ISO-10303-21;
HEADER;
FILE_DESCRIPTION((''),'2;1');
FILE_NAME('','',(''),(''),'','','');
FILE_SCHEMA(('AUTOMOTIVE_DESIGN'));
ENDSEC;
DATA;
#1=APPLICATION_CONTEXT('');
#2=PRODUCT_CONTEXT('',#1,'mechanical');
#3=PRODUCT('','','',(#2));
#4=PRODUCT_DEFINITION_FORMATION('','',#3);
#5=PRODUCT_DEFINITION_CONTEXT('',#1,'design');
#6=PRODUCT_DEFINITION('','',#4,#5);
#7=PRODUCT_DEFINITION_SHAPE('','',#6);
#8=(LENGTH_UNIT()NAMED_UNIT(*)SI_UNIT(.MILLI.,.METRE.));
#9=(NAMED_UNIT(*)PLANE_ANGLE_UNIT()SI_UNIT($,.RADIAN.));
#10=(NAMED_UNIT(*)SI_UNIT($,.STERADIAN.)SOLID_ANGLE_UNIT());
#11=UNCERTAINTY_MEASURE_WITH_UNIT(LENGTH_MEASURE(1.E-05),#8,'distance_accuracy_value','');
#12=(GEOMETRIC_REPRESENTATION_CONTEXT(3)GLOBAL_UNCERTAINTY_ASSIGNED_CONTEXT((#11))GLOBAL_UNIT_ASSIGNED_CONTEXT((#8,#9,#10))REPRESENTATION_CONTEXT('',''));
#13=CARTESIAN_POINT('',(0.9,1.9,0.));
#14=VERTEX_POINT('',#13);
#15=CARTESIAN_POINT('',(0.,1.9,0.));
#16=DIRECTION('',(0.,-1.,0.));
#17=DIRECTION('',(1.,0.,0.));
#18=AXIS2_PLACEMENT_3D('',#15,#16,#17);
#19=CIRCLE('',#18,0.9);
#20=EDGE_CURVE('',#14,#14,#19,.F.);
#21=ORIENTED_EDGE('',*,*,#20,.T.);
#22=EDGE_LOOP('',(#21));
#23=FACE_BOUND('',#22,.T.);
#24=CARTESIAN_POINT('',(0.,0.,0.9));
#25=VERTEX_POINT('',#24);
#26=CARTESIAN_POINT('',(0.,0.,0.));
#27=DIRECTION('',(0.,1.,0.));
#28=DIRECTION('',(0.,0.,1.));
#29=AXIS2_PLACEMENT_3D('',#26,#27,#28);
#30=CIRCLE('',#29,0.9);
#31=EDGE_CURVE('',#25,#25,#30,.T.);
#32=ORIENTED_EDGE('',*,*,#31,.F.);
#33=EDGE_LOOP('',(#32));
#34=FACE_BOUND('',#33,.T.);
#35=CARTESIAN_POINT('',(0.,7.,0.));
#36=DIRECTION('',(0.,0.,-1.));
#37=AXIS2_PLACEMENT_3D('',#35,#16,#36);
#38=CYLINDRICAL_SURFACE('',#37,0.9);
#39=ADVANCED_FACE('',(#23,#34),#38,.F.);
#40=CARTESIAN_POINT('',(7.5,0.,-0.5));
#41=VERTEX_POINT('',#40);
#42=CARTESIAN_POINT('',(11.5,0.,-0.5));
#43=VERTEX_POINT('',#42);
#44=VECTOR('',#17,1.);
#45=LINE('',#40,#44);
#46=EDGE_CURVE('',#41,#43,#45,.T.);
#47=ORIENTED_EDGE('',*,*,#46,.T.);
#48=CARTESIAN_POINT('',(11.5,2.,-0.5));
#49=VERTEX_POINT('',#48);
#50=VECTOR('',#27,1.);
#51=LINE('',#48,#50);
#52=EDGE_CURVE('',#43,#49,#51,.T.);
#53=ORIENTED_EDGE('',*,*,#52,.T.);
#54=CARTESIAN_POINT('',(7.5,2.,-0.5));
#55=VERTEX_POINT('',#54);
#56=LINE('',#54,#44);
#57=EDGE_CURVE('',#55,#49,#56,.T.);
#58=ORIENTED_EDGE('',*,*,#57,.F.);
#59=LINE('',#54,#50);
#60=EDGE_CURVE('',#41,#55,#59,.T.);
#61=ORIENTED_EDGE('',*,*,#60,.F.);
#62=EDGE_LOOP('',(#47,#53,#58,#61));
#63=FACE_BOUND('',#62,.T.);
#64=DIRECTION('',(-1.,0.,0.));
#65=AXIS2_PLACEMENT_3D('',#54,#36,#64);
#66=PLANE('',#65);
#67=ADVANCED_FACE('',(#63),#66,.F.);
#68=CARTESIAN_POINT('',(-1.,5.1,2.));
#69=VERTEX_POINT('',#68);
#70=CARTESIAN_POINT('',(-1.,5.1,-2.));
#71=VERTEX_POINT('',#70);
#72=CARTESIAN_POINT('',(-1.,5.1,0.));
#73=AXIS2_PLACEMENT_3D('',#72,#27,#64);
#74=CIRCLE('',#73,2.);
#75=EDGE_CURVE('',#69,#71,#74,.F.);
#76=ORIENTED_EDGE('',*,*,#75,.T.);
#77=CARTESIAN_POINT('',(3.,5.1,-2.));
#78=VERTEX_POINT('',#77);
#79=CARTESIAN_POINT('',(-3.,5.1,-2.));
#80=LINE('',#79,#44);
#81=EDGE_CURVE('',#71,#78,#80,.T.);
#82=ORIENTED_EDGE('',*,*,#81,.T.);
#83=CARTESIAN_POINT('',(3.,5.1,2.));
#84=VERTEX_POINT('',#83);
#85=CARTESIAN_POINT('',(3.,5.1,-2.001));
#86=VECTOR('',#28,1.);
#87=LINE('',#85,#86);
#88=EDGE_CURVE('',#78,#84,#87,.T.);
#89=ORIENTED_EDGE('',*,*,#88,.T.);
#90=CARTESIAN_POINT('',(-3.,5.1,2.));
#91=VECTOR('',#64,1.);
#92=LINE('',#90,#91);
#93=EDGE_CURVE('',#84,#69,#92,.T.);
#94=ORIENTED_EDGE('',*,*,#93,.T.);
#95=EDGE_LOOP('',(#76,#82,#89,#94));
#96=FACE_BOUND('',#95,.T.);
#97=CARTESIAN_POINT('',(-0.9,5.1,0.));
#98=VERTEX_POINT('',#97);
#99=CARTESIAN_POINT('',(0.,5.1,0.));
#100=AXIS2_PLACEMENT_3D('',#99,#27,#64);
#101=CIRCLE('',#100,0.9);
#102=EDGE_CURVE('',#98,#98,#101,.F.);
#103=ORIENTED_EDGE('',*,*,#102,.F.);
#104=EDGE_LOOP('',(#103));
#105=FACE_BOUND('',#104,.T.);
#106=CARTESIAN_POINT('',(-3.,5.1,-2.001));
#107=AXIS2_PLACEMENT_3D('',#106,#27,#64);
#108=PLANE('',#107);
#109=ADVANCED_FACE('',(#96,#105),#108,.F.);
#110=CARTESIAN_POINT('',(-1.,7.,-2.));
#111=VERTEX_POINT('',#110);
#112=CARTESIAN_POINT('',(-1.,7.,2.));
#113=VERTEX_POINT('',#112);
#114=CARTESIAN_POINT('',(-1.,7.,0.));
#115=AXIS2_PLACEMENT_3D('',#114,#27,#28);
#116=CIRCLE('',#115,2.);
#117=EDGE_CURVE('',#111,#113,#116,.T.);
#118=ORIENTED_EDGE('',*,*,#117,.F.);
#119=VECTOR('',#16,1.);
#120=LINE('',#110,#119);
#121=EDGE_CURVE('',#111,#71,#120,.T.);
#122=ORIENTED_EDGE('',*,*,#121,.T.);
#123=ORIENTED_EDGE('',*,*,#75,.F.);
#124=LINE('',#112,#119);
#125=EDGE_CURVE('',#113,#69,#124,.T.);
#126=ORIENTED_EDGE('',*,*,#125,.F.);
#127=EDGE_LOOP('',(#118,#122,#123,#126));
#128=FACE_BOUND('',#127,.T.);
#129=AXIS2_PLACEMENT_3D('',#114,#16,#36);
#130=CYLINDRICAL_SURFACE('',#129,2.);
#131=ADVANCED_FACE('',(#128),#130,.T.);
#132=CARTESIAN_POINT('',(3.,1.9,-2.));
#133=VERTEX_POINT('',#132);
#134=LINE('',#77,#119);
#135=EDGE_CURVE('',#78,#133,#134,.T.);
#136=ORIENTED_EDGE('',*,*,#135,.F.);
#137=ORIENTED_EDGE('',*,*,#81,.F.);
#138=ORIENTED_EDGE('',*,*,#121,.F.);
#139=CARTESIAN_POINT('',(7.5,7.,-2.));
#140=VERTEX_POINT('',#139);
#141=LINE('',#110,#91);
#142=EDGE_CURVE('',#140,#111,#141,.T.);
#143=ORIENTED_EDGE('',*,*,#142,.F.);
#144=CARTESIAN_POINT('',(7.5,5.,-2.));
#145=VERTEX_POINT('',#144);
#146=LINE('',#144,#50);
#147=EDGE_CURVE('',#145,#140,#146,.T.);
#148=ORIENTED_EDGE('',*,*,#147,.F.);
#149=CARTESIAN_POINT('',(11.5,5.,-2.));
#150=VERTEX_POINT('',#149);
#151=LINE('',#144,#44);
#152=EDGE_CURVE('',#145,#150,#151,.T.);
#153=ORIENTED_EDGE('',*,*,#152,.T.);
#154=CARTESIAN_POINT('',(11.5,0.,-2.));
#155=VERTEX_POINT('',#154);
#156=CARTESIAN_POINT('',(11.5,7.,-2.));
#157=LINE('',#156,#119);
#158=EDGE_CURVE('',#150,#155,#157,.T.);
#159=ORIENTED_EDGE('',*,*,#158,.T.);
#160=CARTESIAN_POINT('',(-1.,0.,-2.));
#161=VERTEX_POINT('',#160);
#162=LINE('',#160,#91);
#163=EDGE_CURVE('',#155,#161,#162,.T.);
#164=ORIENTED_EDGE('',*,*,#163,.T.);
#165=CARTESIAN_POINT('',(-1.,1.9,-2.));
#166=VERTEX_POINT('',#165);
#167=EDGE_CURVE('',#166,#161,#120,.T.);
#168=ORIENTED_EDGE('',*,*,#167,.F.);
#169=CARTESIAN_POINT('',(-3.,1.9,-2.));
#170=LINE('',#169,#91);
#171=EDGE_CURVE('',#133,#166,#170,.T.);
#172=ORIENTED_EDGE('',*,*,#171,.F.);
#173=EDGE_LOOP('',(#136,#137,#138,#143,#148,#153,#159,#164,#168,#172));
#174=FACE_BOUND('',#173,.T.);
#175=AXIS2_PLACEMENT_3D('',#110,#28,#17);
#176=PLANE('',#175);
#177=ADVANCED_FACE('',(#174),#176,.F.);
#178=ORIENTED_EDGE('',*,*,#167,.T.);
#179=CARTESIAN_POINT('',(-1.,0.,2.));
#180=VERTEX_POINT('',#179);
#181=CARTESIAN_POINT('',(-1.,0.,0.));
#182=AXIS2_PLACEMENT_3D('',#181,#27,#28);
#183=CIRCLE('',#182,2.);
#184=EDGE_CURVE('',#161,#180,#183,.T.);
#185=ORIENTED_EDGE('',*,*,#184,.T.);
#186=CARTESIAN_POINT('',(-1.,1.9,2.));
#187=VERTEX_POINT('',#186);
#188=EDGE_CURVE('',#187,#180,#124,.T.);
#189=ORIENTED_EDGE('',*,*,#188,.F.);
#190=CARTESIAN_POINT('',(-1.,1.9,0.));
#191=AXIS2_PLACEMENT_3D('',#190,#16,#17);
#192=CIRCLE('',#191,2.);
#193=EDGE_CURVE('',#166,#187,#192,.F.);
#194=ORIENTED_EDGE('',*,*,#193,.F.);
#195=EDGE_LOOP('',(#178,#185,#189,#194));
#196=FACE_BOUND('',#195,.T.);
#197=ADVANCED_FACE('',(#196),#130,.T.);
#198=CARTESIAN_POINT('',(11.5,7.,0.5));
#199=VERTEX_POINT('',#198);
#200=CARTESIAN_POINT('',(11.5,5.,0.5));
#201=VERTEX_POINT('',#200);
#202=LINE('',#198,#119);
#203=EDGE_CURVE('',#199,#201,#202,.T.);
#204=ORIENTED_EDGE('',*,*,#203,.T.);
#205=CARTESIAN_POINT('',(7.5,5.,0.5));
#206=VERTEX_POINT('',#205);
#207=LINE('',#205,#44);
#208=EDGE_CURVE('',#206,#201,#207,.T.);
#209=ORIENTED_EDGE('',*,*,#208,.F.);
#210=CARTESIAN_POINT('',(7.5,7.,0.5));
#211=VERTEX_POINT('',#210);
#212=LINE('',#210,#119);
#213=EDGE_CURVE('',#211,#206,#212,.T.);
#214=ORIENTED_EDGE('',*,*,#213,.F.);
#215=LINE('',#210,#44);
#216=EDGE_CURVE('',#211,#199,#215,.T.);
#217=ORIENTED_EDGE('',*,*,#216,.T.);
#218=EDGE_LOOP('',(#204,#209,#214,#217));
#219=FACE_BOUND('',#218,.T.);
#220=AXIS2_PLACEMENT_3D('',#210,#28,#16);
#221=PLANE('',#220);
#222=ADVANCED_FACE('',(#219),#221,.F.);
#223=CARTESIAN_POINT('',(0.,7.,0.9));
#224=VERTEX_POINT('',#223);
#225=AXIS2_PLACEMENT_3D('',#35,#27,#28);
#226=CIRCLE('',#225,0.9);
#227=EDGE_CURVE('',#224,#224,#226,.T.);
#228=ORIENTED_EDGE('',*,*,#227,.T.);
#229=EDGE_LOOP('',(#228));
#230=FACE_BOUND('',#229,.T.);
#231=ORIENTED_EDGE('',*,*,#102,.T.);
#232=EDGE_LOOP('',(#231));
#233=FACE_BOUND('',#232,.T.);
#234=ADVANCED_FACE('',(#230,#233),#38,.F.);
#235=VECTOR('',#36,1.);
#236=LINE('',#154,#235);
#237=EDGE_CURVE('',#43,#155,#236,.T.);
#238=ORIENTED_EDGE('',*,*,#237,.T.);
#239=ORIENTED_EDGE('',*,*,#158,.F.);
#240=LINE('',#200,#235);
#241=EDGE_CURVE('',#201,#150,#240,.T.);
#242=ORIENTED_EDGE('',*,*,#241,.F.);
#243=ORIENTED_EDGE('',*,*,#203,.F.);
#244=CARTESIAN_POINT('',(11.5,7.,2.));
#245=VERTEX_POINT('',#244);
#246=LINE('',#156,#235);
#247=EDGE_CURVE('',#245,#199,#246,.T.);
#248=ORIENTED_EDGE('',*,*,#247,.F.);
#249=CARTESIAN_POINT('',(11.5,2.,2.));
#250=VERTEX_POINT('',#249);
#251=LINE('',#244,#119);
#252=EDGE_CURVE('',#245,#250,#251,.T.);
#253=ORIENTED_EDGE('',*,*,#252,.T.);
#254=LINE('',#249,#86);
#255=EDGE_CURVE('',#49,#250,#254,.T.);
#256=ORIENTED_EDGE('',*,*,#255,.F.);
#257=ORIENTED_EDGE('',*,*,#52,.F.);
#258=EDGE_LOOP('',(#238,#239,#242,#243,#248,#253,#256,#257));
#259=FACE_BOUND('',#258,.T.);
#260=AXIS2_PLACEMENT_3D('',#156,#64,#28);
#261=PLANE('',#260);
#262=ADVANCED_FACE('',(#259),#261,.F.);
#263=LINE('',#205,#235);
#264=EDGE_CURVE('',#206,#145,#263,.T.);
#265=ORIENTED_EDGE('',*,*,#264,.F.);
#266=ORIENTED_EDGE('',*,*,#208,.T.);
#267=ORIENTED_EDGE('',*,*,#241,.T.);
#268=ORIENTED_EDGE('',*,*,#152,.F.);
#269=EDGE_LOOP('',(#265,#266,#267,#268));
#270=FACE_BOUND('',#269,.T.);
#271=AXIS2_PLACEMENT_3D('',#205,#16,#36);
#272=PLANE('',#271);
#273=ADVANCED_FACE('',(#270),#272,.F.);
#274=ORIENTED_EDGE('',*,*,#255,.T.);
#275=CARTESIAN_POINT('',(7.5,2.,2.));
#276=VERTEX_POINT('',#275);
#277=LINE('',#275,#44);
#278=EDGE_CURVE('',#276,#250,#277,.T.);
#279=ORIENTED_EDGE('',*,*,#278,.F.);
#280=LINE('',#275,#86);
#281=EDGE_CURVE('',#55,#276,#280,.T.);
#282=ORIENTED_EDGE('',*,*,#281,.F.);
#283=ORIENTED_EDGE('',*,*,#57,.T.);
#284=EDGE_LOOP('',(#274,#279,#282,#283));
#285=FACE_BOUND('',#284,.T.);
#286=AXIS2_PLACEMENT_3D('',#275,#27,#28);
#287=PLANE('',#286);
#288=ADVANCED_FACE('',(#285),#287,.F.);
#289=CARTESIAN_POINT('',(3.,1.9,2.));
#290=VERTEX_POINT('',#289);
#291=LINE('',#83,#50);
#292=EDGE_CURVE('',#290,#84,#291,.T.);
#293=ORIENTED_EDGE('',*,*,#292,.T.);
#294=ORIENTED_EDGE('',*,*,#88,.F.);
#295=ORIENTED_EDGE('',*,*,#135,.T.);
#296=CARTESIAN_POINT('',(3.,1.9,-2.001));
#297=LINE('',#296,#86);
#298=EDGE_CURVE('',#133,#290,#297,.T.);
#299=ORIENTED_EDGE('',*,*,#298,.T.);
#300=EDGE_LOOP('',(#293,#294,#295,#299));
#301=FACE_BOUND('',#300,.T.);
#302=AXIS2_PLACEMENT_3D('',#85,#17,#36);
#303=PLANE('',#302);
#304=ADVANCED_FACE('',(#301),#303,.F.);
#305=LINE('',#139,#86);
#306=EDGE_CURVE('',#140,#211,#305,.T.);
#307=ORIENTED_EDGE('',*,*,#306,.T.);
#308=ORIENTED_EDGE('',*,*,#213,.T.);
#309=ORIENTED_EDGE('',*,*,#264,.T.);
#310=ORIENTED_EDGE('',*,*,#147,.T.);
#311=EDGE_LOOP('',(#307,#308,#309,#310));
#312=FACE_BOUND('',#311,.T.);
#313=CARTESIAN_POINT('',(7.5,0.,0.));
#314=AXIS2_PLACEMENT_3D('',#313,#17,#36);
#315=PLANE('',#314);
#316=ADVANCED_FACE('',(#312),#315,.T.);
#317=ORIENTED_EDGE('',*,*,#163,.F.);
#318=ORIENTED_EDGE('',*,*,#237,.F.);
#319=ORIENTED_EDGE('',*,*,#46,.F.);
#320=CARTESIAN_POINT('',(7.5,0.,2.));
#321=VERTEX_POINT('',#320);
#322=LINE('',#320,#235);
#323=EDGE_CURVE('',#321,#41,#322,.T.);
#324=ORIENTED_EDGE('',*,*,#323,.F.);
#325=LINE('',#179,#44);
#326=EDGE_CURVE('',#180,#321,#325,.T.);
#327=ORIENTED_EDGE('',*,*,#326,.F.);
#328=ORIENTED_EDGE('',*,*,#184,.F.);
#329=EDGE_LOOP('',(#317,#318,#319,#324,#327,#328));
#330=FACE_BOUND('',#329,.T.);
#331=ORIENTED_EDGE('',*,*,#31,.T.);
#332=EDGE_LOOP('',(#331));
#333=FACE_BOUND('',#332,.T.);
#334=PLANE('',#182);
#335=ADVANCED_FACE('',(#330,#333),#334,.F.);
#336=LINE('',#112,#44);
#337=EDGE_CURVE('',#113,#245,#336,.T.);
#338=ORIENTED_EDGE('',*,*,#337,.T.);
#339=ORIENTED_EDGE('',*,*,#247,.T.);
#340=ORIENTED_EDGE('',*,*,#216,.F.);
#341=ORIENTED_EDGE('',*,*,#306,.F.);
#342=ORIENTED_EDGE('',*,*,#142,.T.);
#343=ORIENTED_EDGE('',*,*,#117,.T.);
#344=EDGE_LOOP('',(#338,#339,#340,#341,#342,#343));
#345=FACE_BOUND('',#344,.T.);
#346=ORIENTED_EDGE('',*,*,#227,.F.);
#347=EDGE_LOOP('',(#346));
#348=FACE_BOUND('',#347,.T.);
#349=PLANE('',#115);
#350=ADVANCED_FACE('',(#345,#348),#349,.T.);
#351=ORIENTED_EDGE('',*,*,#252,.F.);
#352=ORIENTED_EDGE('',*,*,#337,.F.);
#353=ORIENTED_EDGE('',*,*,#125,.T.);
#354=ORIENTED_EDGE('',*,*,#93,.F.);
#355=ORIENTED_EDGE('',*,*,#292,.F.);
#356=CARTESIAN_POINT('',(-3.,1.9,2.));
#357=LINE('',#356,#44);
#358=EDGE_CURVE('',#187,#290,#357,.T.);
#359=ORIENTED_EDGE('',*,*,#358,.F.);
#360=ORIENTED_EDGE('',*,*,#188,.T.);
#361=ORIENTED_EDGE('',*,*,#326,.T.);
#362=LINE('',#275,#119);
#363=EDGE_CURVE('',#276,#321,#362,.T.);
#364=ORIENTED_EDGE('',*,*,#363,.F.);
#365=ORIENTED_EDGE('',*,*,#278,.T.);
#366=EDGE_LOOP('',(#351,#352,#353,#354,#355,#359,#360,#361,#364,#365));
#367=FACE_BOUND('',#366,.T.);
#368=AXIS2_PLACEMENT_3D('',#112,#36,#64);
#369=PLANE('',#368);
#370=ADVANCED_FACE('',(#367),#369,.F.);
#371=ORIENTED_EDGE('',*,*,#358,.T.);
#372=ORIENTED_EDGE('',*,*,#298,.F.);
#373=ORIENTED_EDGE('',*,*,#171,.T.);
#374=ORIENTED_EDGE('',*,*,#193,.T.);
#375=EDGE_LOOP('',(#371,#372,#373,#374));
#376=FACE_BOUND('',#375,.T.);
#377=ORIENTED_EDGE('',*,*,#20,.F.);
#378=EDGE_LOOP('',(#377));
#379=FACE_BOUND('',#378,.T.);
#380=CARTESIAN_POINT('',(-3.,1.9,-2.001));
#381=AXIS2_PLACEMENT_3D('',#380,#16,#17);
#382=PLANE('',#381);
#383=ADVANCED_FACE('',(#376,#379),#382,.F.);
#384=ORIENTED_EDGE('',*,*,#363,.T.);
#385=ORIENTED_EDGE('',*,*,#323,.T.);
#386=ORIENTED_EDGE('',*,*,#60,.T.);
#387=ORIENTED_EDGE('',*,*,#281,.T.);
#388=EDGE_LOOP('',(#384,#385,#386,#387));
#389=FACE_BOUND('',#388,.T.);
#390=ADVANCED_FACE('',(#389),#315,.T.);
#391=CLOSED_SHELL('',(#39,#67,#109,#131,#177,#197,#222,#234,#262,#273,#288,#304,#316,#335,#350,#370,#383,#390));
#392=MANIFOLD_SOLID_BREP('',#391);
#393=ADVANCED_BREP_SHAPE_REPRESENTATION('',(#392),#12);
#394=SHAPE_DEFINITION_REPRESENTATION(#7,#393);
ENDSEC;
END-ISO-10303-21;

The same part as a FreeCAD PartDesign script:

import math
import FreeCAD as App
import Part
import Sketcher
Q = App.Units.Quantity


def add_polygon(sketch, points):
    """Adds a closed chain of lines whose ends are joined by coincident constraints."""
    first, n = sketch.GeometryCount, len(points)
    for a, b in zip(points, points[1:] + points[:1]):
        sketch.addGeometry(Part.LineSegment(App.Vector(*a, 0), App.Vector(*b, 0)), False)
    for i in range(n):
        sketch.addConstraint(Sketcher.Constraint("Coincident", first + i, 2, first + (i + 1) % n, 1))

doc = App.newDocument("Part")
body = doc.addObject("PartDesign::Body", "Body")

# Sketch on XZ plane
sketch1 = body.newObject("Sketcher::SketchObject", "Sketch")
sketch1.AttachmentSupport = (doc.getObject("XZ_Plane"), [""])
sketch1.MapMode = "FlatFace"
sketch1.addGeometry(Part.LineSegment(App.Vector(11.5, -2, 0), App.Vector(-1, -2, 0)), False)
sketch1.addGeometry(Part.ArcOfCircle(Part.Circle(App.Vector(-1, 0, 0), App.Vector(0, 0, 1), 2), math.radians(90), math.radians(270)), False)
sketch1.addGeometry(Part.LineSegment(App.Vector(-1, 2, 0), App.Vector(11.5, 2, 0)), False)
sketch1.addGeometry(Part.LineSegment(App.Vector(11.5, 2, 0), App.Vector(11.5, -2, 0)), False)
sketch1.addGeometry(Part.Circle(App.Vector(0, 0, 0), App.Vector(0, 0, 1), 0.9), False)
sketch1.addConstraint(Sketcher.Constraint("Tangent", 0, 2, 1, 2))
sketch1.addConstraint(Sketcher.Constraint("Tangent", 1, 1, 2, 1))
sketch1.addConstraint(Sketcher.Constraint("Coincident", 2, 2, 3, 1))
sketch1.addConstraint(Sketcher.Constraint("Coincident", 3, 2, 0, 1))
sketch1.addConstraint(Sketcher.Constraint("Horizontal", 0))
sketch1.addConstraint(Sketcher.Constraint("Horizontal", 2))
sketch1.addConstraint(Sketcher.Constraint("Vertical", 3))
sketch1.addConstraint(Sketcher.Constraint("Coincident", 4, 3, -1, 1))
sketch1.addConstraint(Sketcher.Constraint("PointOnObject", 1, 3, -1))
sketch1.addConstraint(Sketcher.Constraint("Radius", 1, Q("2 mm")))
sketch1.addConstraint(Sketcher.Constraint("Diameter", 4, Q("1.8 mm")))
sketch1.addConstraint(Sketcher.Constraint("DistanceX", 0, 2, 0, 1, Q("12.5 mm")))
sketch1.addConstraint(Sketcher.Constraint("DistanceX", 1, 3, -1, 1, Q("1 mm")))
pad1 = body.newObject("PartDesign::Pad", "Pad")
pad1.Profile = sketch1
pad1.Length = 7
pad1.Reversed = True

# Sketch on XY plane
sketch2 = body.newObject("Sketcher::SketchObject", "Sketch001")
sketch2.AttachmentSupport = (doc.getObject("XY_Plane"), [""])
sketch2.MapMode = "FlatFace"
sketch2.AttachmentOffset = App.Placement(App.Vector(0, 0, 2), App.Rotation())
add_polygon(sketch2, [(-3, 5.1), (-3, 1.9), (3, 1.9), (3, 5.1)])  # lines 0-3
sketch2.addConstraint(Sketcher.Constraint("Vertical", 0))
sketch2.addConstraint(Sketcher.Constraint("Horizontal", 1))
sketch2.addConstraint(Sketcher.Constraint("Vertical", 2))
sketch2.addConstraint(Sketcher.Constraint("Horizontal", 3))
sketch2.addConstraint(Sketcher.Constraint("DistanceX", 1, 1, 1, 2, Q("6 mm")))
sketch2.addConstraint(Sketcher.Constraint("DistanceY", 0, 2, 0, 1, Q("3.2 mm")))
sketch2.addConstraint(Sketcher.Constraint("DistanceX", 0, 2, -1, 1, Q("3 mm")))
sketch2.addConstraint(Sketcher.Constraint("DistanceY", -1, 1, 0, 2, Q("1.9 mm")))
pocket1 = body.newObject("PartDesign::Pocket", "Pocket")
pocket1.Profile = sketch2
pocket1.Type = "UpToFirst"

# Sketch on YZ plane
sketch3 = body.newObject("Sketcher::SketchObject", "Sketch002")
sketch3.AttachmentSupport = (doc.getObject("YZ_Plane"), [""])
sketch3.MapMode = "FlatFace"
sketch3.AttachmentOffset = App.Placement(App.Vector(0, 0, 11.5), App.Rotation())
add_polygon(sketch3, [(7, 0.5), (5, 0.5), (5, -2), (7, -2)])  # lines 0-3
add_polygon(sketch3, [(2, 2), (0, 2), (0, -0.5), (2, -0.5)])  # lines 4-7
sketch3.addConstraint(Sketcher.Constraint("Horizontal", 0))
sketch3.addConstraint(Sketcher.Constraint("Vertical", 1))
sketch3.addConstraint(Sketcher.Constraint("Horizontal", 2))
sketch3.addConstraint(Sketcher.Constraint("Vertical", 3))
sketch3.addConstraint(Sketcher.Constraint("Horizontal", 4))
sketch3.addConstraint(Sketcher.Constraint("Vertical", 5))
sketch3.addConstraint(Sketcher.Constraint("Horizontal", 6))
sketch3.addConstraint(Sketcher.Constraint("Vertical", 7))
sketch3.addConstraint(Sketcher.Constraint("PointOnObject", 4, 2, -2))
sketch3.addConstraint(Sketcher.Constraint("Equal", 2, 4))
sketch3.addConstraint(Sketcher.Constraint("Equal", 3, 5))
sketch3.addConstraint(Sketcher.Constraint("DistanceX", 0, 2, 0, 1, Q("2 mm")))
sketch3.addConstraint(Sketcher.Constraint("DistanceY", 1, 2, 1, 1, Q("2.5 mm")))
sketch3.addConstraint(Sketcher.Constraint("DistanceX", -1, 1, 0, 2, Q("5 mm")))
sketch3.addConstraint(Sketcher.Constraint("DistanceY", 1, 2, -1, 1, Q("2 mm")))
sketch3.addConstraint(Sketcher.Constraint("DistanceY", -1, 1, 4, 2, Q("2 mm")))
pocket2 = body.newObject("PartDesign::Pocket", "Pocket001")
pocket2.Profile = sketch3
pocket2.Length = 4

doc.recompute()
